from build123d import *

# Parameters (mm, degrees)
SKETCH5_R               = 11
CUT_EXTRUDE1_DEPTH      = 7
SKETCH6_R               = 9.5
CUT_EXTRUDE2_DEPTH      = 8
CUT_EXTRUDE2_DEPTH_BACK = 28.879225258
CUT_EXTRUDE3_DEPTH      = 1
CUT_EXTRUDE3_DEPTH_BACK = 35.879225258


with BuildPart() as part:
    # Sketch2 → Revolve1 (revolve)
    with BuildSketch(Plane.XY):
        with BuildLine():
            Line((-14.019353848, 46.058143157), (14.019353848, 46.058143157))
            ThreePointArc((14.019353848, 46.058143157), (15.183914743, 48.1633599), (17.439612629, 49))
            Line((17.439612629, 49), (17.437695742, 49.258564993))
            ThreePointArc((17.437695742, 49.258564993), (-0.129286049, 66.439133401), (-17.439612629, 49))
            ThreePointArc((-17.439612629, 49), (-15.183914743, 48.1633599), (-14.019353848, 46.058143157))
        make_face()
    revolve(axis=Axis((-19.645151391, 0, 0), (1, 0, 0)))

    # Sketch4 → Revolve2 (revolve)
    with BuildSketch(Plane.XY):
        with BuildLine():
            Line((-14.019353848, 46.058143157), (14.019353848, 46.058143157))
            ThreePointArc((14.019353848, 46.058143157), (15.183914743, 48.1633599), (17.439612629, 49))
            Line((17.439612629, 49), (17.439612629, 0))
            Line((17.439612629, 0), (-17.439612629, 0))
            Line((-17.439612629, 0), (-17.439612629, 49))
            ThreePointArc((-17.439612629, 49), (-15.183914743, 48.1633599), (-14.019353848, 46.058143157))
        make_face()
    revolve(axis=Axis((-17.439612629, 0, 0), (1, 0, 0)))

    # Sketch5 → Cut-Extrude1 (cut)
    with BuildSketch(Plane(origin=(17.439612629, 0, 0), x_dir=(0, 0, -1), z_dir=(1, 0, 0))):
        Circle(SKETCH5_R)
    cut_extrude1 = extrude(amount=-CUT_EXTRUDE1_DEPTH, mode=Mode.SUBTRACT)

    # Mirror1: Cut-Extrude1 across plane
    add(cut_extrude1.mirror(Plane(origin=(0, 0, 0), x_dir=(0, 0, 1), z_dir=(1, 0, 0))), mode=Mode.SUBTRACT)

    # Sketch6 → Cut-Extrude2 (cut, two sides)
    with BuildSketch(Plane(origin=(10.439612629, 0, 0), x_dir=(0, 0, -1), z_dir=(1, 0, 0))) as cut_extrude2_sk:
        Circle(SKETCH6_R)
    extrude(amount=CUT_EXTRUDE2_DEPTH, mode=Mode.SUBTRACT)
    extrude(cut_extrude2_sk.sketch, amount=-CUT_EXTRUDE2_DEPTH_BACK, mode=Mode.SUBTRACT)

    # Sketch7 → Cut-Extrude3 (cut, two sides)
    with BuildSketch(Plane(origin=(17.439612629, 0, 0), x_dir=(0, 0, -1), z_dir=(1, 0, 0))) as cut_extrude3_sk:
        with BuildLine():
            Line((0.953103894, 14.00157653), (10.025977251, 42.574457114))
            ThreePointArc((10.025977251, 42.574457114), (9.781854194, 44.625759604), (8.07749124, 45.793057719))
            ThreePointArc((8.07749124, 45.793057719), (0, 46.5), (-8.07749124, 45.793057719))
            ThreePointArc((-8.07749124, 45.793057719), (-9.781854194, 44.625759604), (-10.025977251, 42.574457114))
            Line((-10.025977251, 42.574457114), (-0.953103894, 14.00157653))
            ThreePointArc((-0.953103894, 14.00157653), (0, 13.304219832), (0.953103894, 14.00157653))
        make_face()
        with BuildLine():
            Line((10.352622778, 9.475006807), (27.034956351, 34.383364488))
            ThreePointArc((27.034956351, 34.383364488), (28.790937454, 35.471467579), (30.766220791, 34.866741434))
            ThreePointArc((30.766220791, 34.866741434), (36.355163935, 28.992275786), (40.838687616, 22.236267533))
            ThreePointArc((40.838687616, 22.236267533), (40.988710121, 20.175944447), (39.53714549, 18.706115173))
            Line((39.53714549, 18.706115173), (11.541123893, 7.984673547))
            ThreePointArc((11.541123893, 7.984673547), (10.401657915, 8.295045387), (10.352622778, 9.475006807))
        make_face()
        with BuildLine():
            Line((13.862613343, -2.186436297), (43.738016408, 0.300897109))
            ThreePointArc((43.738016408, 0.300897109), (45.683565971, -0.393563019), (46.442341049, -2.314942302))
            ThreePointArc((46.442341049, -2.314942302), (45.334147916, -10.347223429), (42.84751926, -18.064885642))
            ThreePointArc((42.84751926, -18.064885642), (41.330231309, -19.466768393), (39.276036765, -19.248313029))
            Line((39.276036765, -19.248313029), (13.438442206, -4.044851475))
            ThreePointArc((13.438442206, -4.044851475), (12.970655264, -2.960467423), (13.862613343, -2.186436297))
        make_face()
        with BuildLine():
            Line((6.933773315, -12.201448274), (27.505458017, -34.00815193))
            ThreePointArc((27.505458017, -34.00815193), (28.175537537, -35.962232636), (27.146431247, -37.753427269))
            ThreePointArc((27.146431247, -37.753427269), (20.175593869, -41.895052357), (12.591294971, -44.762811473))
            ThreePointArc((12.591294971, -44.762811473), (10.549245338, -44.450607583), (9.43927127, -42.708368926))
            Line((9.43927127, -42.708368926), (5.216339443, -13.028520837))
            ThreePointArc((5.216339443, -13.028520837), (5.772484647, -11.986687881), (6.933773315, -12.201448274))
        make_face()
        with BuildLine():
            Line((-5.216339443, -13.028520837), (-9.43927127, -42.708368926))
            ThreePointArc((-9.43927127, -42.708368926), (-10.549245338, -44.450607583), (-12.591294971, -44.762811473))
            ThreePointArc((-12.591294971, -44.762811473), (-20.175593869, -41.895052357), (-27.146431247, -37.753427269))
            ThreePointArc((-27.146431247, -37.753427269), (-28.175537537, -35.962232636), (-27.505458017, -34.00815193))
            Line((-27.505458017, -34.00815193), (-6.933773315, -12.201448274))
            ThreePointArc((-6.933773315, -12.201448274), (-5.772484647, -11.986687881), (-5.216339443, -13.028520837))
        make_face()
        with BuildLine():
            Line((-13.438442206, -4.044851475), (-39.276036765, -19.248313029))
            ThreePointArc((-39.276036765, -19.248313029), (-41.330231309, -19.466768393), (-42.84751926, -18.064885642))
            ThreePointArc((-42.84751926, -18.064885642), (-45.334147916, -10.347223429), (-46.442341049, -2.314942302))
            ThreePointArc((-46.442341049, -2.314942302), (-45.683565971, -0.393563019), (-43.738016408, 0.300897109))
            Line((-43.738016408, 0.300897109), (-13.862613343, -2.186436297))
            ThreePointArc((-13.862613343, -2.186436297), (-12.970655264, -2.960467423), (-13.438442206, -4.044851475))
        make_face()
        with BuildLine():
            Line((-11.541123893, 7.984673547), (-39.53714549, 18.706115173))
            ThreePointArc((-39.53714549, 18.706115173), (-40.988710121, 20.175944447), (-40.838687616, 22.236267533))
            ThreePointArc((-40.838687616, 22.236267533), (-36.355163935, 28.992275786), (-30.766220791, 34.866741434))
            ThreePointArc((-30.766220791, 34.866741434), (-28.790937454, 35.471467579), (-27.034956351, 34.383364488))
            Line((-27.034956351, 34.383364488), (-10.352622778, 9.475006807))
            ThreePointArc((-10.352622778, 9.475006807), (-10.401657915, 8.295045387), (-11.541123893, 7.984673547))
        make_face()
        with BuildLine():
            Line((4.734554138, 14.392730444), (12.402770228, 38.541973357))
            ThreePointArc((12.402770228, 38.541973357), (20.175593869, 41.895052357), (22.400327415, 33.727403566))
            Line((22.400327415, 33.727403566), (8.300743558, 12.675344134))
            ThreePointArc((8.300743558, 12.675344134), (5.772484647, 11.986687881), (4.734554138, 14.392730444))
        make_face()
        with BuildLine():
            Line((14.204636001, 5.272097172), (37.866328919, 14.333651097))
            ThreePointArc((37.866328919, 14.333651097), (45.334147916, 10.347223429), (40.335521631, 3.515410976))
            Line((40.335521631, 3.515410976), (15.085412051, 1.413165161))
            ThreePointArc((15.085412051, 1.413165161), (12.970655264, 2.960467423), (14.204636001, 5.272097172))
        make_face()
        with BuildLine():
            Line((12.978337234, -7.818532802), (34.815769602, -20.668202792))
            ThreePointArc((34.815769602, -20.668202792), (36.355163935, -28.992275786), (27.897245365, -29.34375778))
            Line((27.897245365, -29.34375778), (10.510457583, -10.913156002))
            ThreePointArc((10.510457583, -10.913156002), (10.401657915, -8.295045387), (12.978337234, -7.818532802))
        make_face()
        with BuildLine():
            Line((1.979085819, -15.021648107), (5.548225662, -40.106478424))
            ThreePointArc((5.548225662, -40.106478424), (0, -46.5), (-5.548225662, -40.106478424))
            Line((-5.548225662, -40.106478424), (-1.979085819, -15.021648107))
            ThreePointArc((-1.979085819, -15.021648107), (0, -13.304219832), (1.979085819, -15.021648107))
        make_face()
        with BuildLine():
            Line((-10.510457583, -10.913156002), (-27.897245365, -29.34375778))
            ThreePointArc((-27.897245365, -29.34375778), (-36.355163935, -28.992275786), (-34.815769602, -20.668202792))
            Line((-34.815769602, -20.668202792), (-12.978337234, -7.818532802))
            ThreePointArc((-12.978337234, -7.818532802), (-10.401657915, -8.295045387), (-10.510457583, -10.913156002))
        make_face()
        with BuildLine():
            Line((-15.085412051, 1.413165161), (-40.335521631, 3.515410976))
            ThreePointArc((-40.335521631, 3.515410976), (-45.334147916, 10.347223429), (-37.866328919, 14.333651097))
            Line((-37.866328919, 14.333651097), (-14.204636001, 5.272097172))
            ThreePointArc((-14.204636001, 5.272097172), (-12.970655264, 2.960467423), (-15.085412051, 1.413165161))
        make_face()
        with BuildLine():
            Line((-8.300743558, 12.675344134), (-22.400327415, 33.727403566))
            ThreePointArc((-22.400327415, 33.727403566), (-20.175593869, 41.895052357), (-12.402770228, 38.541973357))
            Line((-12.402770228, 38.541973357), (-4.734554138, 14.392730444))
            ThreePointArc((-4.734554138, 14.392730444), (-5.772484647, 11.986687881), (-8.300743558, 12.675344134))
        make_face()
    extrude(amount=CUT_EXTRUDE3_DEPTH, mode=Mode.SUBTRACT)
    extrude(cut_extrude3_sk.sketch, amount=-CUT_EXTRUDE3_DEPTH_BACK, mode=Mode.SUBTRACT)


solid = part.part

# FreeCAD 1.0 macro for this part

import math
import FreeCAD as App
import Part
import Sketcher

V = App.Vector

doc = App.newDocument("Part")
params = doc.addObject("Spreadsheet::Sheet", "Params")
for row, (alias, value) in enumerate([
    ("revolution_angle", "360 deg"),
    ("sketch2_height", "49 mm"),
    ("revolution2_angle", "360 deg"),
    ("sketch3_diameter", "22 mm"),
    ("pocket1_length", "7 mm"),
    ("sketch4_diameter", "19 mm"),
    ("sketch5_radius", "1 mm"),
    ("sketch5_radius2", "2.5 mm"),
    ("sketch5_radius3", "46.5 mm"),
], start=1):
    params.set(f"A{row}", alias)
    params.set(f"B{row}", "=" + value)
    params.setAlias(f"B{row}", alias)

body = doc.addObject("PartDesign::Body", "Body")

sketch1 = body.newObject("Sketcher::SketchObject", "Sketch")
sketch1.AttachmentSupport = (doc.getObject("XY_Plane"), [""])
sketch1.MapMode = "FlatFace"
sketch1.addGeometry([
    Part.LineSegment(V(-14.019354, 46.058143, 0), V(14.019354, 46.058143, 0)),
    Part.ArcOfCircle(Part.Circle(V(17.439613, 45.540843, 0), V(0, 0, 1), 3.459157), math.radians(90), math.radians(171.399426)),
    Part.LineSegment(V(17.439613, 49, 0), V(17.437696, 49.258565, 0)),
    Part.ArcOfCircle(Part.Circle(V(0, 49, 0), V(0, 0, 1), 17.439613), math.radians(0.849516), math.radians(180)),
    Part.ArcOfCircle(Part.Circle(V(-17.439613, 45.540843, 0), V(0, 0, 1), 3.459157), math.radians(8.600574), math.radians(90)),
], False)
sketch1.addConstraint([
    Sketcher.Constraint("Coincident", 0, 2, 1, 2),
    Sketcher.Constraint("Coincident", 1, 1, 2, 1),
    Sketcher.Constraint("Coincident", 2, 2, 3, 1),
    Sketcher.Constraint("Coincident", 3, 2, 4, 2),
    Sketcher.Constraint("Coincident", 4, 1, 0, 1),
    Sketcher.Constraint("Horizontal", 0),
    Sketcher.Constraint("PointOnObject", 3, 3, -2),
    Sketcher.Constraint("DistanceY", -1, 1, 3, 3, 49.0),
    Sketcher.Constraint("DistanceY", -1, 1, 1, 1, 49.0),
    Sketcher.Constraint("DistanceY", -1, 1, 3, 2, 49.0),
    Sketcher.Constraint("Radius", 1, 3.459157),
    Sketcher.Constraint("Radius", 3, 17.439613),
    Sketcher.Constraint("Radius", 4, 3.459157),
    Sketcher.Constraint("DistanceY", 1, 3, 0, 2, 0.517301),
    Sketcher.Constraint("DistanceX", 0, 1, 0, 2, 28.038708),
    Sketcher.Constraint("DistanceX", 0, 2, 1, 1, 3.420259),
    Sketcher.Constraint("DistanceX", 0, 2, 2, 2, 3.418342),
    Sketcher.Constraint("DistanceY", 0, 2, 2, 2, 3.200422),
])
revolution = body.newObject("PartDesign::Revolution", "Revolution")
revolution.Profile = sketch1
revolution.ReferenceAxis = (sketch1, ["H_Axis"])
revolution.setExpression("Angle", "Params.revolution_angle")

sketch2 = body.newObject("Sketcher::SketchObject", "Sketch001")
sketch2.AttachmentSupport = (doc.getObject("XY_Plane"), [""])
sketch2.MapMode = "FlatFace"
sketch2.addGeometry([
    Part.LineSegment(V(14, 46.1, 0), V(-14, 46.1, 0)),
    Part.ArcOfCircle(Part.Circle(V(-17.4, 45.5, 0), V(0, 0, 1), 3.5), math.radians(9), math.radians(90)),
    Part.LineSegment(V(-17.4, 49, 0), V(-17.4, 0, 0)),
    Part.LineSegment(V(-17.4, 0, 0), V(17.4, 0, 0)),
    Part.LineSegment(V(17.4, 0, 0), V(17.4, 49, 0)),
    Part.ArcOfCircle(Part.Circle(V(17.4, 45.5, 0), V(0, 0, 1), 3.5), math.radians(90), math.radians(171)),
], False)
sketch2.addConstraint([
    Sketcher.Constraint("Coincident", 0, 2, 1, 1),
    Sketcher.Constraint("Coincident", 1, 2, 2, 1),
    Sketcher.Constraint("Coincident", 2, 2, 3, 1),
    Sketcher.Constraint("Coincident", 3, 2, 4, 1),
    Sketcher.Constraint("Coincident", 4, 2, 5, 1),
    Sketcher.Constraint("Coincident", 5, 2, 0, 1),
    Sketcher.Constraint("Horizontal", 0),
    Sketcher.Constraint("Vertical", 2),
    Sketcher.Constraint("Horizontal", 3),
    Sketcher.Constraint("Vertical", 4),
    Sketcher.Constraint("Equal", 1, 5),
    Sketcher.Constraint("Symmetric", 2, 2, 3, 2, -1, 1),
    Sketcher.Constraint("Symmetric", 1, 3, 5, 3, -2),
    Sketcher.Constraint("Vertical", 5, 3, 3, 2),
    Sketcher.Constraint("DistanceY", 2, 2, 2, 1, 49.0),
    Sketcher.Constraint("Radius", 1, 3.459157),
    Sketcher.Constraint("DistanceY", 1, 3, 0, 2, 0.517301),
    Sketcher.Constraint("DistanceX", 0, 2, 0, 1, 28.038708),
])
sketch2.setExpression("Constraints[14]", "Params.sketch2_height")
revolution2 = body.newObject("PartDesign::Revolution", "Revolution001")
revolution2.Profile = sketch2
revolution2.ReferenceAxis = (sketch2, ["H_Axis"])
revolution2.setExpression("Angle", "Params.revolution2_angle")

sketch3 = body.newObject("Sketcher::SketchObject", "Sketch002")
sketch3.AttachmentSupport = (doc.getObject("YZ_Plane"), [""])
sketch3.MapMode = "FlatFace"
sketch3.AttachmentOffset = App.Placement(V(0, 0, 17.439613), App.Rotation())
sketch3.addGeometry(Part.Circle(V(0, 0, 0), V(0, 0, 1), 11), False)
sketch3.addConstraint([
    Sketcher.Constraint("Coincident", 0, 3, -1, 1),
    Sketcher.Constraint("Diameter", 0, 22.0),
])
sketch3.setExpression("Constraints[1]", "Params.sketch3_diameter")
pocket1 = body.newObject("PartDesign::Pocket", "Pocket")
pocket1.Profile = sketch3
pocket1.setExpression("Length", "Params.pocket1_length")
doc.recompute()

mirrored = body.newObject("PartDesign::Mirrored", "Mirrored")
mirrored.Originals = [pocket1]
mirrored.MirrorPlane = (doc.getObject("YZ_Plane"), [""])
body.Tip = mirrored

sketch4 = body.newObject("Sketcher::SketchObject", "Sketch003")
sketch4.AttachmentSupport = (doc.getObject("YZ_Plane"), [""])
sketch4.MapMode = "FlatFace"
sketch4.AttachmentOffset = App.Placement(V(0, 0, 10.439613), App.Rotation())
sketch4.addGeometry(Part.Circle(V(0, 0, 0), V(0, 0, 1), 10), False)
sketch4.addConstraint([
    Sketcher.Constraint("Coincident", 0, 3, -1, 1),
    Sketcher.Constraint("Diameter", 0, 19.0),
])
sketch4.setExpression("Constraints[1]", "Params.sketch4_diameter")
pocket2 = body.newObject("PartDesign::Pocket", "Pocket001")
pocket2.Profile = sketch4
pocket2.Type = "ThroughAll"
pocket2.Midplane = True

sketch5 = body.newObject("Sketcher::SketchObject", "Sketch004")
sketch5.AttachmentSupport = (doc.getObject("YZ_Plane"), [""])
sketch5.MapMode = "FlatFace"
sketch5.AttachmentOffset = App.Placement(V(0, 0, 17.439613), App.Rotation())
sketch5.addGeometry([
    Part.LineSegment(V(14, -1, 0), V(42.6, -10, 0)),
    Part.ArcOfCircle(Part.Circle(V(43.3, -7.6, 0), V(0, 0, 1), 2.5), math.radians(-108), math.radians(-10)),
    Part.ArcOfCircle(Part.Circle(V(0, 0, 0), V(0, 0, 1), 46.5), math.radians(-10), math.radians(10)),
    Part.ArcOfCircle(Part.Circle(V(43.3, 7.6, 0), V(0, 0, 1), 2.5), math.radians(10), math.radians(108)),
    Part.LineSegment(V(42.6, 10, 0), V(14, 1, 0)),
    Part.ArcOfCircle(Part.Circle(V(14.3, 0, 0), V(0, 0, 1), 1), math.radians(108), math.radians(252)),
    Part.LineSegment(V(34.4, -27, 0), V(9.5, -10.4, 0)),
    Part.ArcOfCircle(Part.Circle(V(8.9, -11.2, 0), V(0, 0, 1), 1), math.radians(56), math.radians(201)),
    Part.LineSegment(V(8, -11.5, 0), V(18.7, -39.5, 0)),
    Part.ArcOfCircle(Part.Circle(V(21, -38.6, 0), V(0, 0, 1), 2.5), math.radians(-159), math.radians(-61)),
    Part.ArcOfCircle(Part.Circle(V(0, 0, 0), V(0, 0, 1), 46.5), math.radians(-61), math.radians(-41)),
    Part.ArcOfCircle(Part.Circle(V(33, -29.1, 0), V(0, 0, 1), 2.5), math.radians(-41), math.radians(56)),
    Part.LineSegment(V(0.3, -43.7, 0), V(-2.2, -13.9, 0)),
    Part.ArcOfCircle(Part.Circle(V(-3.2, -13.9, 0), V(0, 0, 1), 1), math.radians(5), math.radians(150)),
    Part.LineSegment(V(-4, -13.4, 0), V(-19.2, -39.3, 0)),
    Part.ArcOfCircle(Part.Circle(V(-17.1, -40.5, 0), V(0, 0, 1), 2.5), math.radians(150), math.radians(247)),
    Part.ArcOfCircle(Part.Circle(V(0, 0, 0), V(0, 0, 1), 46.5), math.radians(-113), math.radians(-93)),
    Part.ArcOfCircle(Part.Circle(V(-2.2, -43.9, 0), V(0, 0, 1), 2.5), math.radians(-93), math.radians(5)),
    Part.LineSegment(V(-34, -27.5, 0), V(-12.2, -6.9, 0)),
    Part.ArcOfCircle(Part.Circle(V(-12.9, -6.2, 0), V(0, 0, 1), 1), math.radians(-47), math.radians(98)),
    Part.LineSegment(V(-13, -5.2, 0), V(-42.7, -9.4, 0)),
    Part.ArcOfCircle(Part.Circle(V(-42.4, -11.9, 0), V(0, 0, 1), 2.5), math.radians(98), math.radians(196)),
    Part.ArcOfCircle(Part.Circle(V(0, 0, 0), V(0, 0, 1), 46.5), math.radians(-164), math.radians(-144)),
    Part.ArcOfCircle(Part.Circle(V(-35.7, -25.7, 0), V(0, 0, 1), 2.5), math.radians(-144), math.radians(-47)),
    Part.LineSegment(V(-42.7, 9.4, 0), V(-13, 5.2, 0)),
    Part.ArcOfCircle(Part.Circle(V(-12.9, 6.2, 0), V(0, 0, 1), 1), math.radians(-98), math.radians(47)),
    Part.LineSegment(V(-12.2, 6.9, 0), V(-34, 27.5, 0)),
    Part.ArcOfCircle(Part.Circle(V(-35.7, 25.7, 0), V(0, 0, 1), 2.5), math.radians(47), math.radians(144)),
    Part.ArcOfCircle(Part.Circle(V(0, 0, 0), V(0, 0, 1), 46.5), math.radians(144), math.radians(164)),
    Part.ArcOfCircle(Part.Circle(V(-42.4, 11.9, 0), V(0, 0, 1), 2.5), math.radians(164), math.radians(262)),
    Part.LineSegment(V(-19.2, 39.3, 0), V(-4, 13.4, 0)),
    Part.ArcOfCircle(Part.Circle(V(-3.2, 13.9, 0), V(0, 0, 1), 1), math.radians(-150), math.radians(-5)),
    Part.LineSegment(V(-2.2, 13.9, 0), V(0.3, 43.7, 0)),
    Part.ArcOfCircle(Part.Circle(V(-2.2, 43.9, 0), V(0, 0, 1), 2.5), math.radians(-5), math.radians(93)),
    Part.ArcOfCircle(Part.Circle(V(0, 0, 0), V(0, 0, 1), 46.5), math.radians(93), math.radians(113)),
    Part.ArcOfCircle(Part.Circle(V(-17.1, 40.5, 0), V(0, 0, 1), 2.5), math.radians(113), math.radians(210)),
    Part.LineSegment(V(18.7, 39.5, 0), V(8, 11.5, 0)),
    Part.ArcOfCircle(Part.Circle(V(8.9, 11.2, 0), V(0, 0, 1), 1), math.radians(159), math.radians(304)),
    Part.LineSegment(V(9.5, 10.4, 0), V(34.4, 27, 0)),
    Part.ArcOfCircle(Part.Circle(V(33, 29.1, 0), V(0, 0, 1), 2.5), math.radians(-56), math.radians(41)),
    Part.ArcOfCircle(Part.Circle(V(0, 0, 0), V(0, 0, 1), 46.5), math.radians(41), math.radians(61)),
    Part.ArcOfCircle(Part.Circle(V(21, 38.6, 0), V(0, 0, 1), 2.5), math.radians(61), math.radians(159)),
    Part.LineSegment(V(38.5, -12.4, 0), V(14.4, -4.7, 0)),
    Part.ArcOfCircle(Part.Circle(V(13.8, -6.6, 0), V(0, 0, 1), 2), math.radians(72), math.radians(236)),
    Part.LineSegment(V(12.7, -8.3, 0), V(33.7, -22.4, 0)),
    Part.ArcOfCircle(Part.Circle(V(36.8, -17.7, 0), V(0, 0, 1), 5.6), math.radians(-124), math.radians(72)),
    Part.LineSegment(V(14.3, -37.9, 0), V(5.3, -14.2, 0)),
    Part.ArcOfCircle(Part.Circle(V(3.4, -14.9, 0), V(0, 0, 1), 2), math.radians(21), math.radians(185)),
    Part.LineSegment(V(1.4, -15.1, 0), V(3.5, -40.3, 0)),
    Part.ArcOfCircle(Part.Circle(V(9.1, -39.9, 0), V(0, 0, 1), 5.6), math.radians(-175), math.radians(21)),
    Part.LineSegment(V(-20.7, -34.8, 0), V(-7.8, -13, 0)),
    Part.ArcOfCircle(Part.Circle(V(-9.5, -12, 0), V(0, 0, 1), 2), math.radians(-30), math.radians(133)),
    Part.LineSegment(V(-10.9, -10.5, 0), V(-29.3, -27.9, 0)),
    Part.ArcOfCircle(Part.Circle(V(-25.5, -32, 0), V(0, 0, 1), 5.6), math.radians(133), math.radians(330)),
    Part.LineSegment(V(-40.1, -5.5, 0), V(-15, -2, 0)),
    Part.ArcOfCircle(Part.Circle(V(-15.3, 0, 0), V(0, 0, 1), 2), math.radians(-82), math.radians(82)),
    Part.LineSegment(V(-15, 2, 0), V(-40.1, 5.5, 0)),
    Part.ArcOfCircle(Part.Circle(V(-40.9, 0, 0), V(0, 0, 1), 5.6), math.radians(82), math.radians(278)),
    Part.LineSegment(V(-29.3, 27.9, 0), V(-10.9, 10.5, 0)),
    Part.ArcOfCircle(Part.Circle(V(-9.5, 12, 0), V(0, 0, 1), 2), math.radians(-133), math.radians(30)),
    Part.LineSegment(V(-7.8, 13, 0), V(-20.7, 34.8, 0)),
    Part.ArcOfCircle(Part.Circle(V(-25.5, 32, 0), V(0, 0, 1), 5.6), math.radians(30), math.radians(227)),
    Part.LineSegment(V(3.5, 40.3, 0), V(1.4, 15.1, 0)),
    Part.ArcOfCircle(Part.Circle(V(3.4, 14.9, 0), V(0, 0, 1), 2), math.radians(175), math.radians(339)),
    Part.LineSegment(V(5.3, 14.2, 0), V(14.3, 37.9, 0)),
    Part.ArcOfCircle(Part.Circle(V(9.1, 39.9, 0), V(0, 0, 1), 5.6), math.radians(-21), math.radians(175)),
    Part.LineSegment(V(33.7, 22.4, 0), V(12.7, 8.3, 0)),
    Part.ArcOfCircle(Part.Circle(V(13.8, 6.6, 0), V(0, 0, 1), 2), math.radians(124), math.radians(288)),
    Part.LineSegment(V(14.4, 4.7, 0), V(38.5, 12.4, 0)),
    Part.ArcOfCircle(Part.Circle(V(36.8, 17.7, 0), V(0, 0, 1), 5.6), math.radians(-72), math.radians(124)),
], False)
sketch5.addConstraint([
    Sketcher.Constraint("Tangent", 0, 2, 1, 1),
    Sketcher.Constraint("Tangent", 1, 2, 2, 1),
    Sketcher.Constraint("Tangent", 2, 2, 3, 1),
    Sketcher.Constraint("Tangent", 3, 2, 4, 1),
    Sketcher.Constraint("Tangent", 4, 2, 5, 1),
    Sketcher.Constraint("Tangent", 5, 2, 0, 1),
    Sketcher.Constraint("Tangent", 6, 2, 7, 1),
    Sketcher.Constraint("Tangent", 7, 2, 8, 1),
    Sketcher.Constraint("Tangent", 8, 2, 9, 1),
    Sketcher.Constraint("Tangent", 9, 2, 10, 1),
    Sketcher.Constraint("Tangent", 10, 2, 11, 1),
    Sketcher.Constraint("Tangent", 11, 2, 6, 1),
    Sketcher.Constraint("Tangent", 12, 2, 13, 1),
    Sketcher.Constraint("Tangent", 13, 2, 14, 1),
    Sketcher.Constraint("Tangent", 14, 2, 15, 1),
    Sketcher.Constraint("Tangent", 15, 2, 16, 1),
    Sketcher.Constraint("Tangent", 16, 2, 17, 1),
    Sketcher.Constraint("Tangent", 17, 2, 12, 1),
    Sketcher.Constraint("Tangent", 18, 2, 19, 1),
    Sketcher.Constraint("Tangent", 19, 2, 20, 1),
    Sketcher.Constraint("Tangent", 20, 2, 21, 1),
    Sketcher.Constraint("Tangent", 21, 2, 22, 1),
    Sketcher.Constraint("Tangent", 22, 2, 23, 1),
    Sketcher.Constraint("Tangent", 23, 2, 18, 1),
    Sketcher.Constraint("Tangent", 24, 2, 25, 1),
    Sketcher.Constraint("Tangent", 25, 2, 26, 1),
    Sketcher.Constraint("Tangent", 26, 2, 27, 1),
    Sketcher.Constraint("Tangent", 27, 2, 28, 1),
    Sketcher.Constraint("Tangent", 28, 2, 29, 1),
    Sketcher.Constraint("Tangent", 29, 2, 24, 1),
    Sketcher.Constraint("Tangent", 30, 2, 31, 1),
    Sketcher.Constraint("Tangent", 31, 2, 32, 1),
    Sketcher.Constraint("Tangent", 32, 2, 33, 1),
    Sketcher.Constraint("Tangent", 33, 2, 34, 1),
    Sketcher.Constraint("Tangent", 34, 2, 35, 1),
    Sketcher.Constraint("Tangent", 35, 2, 30, 1),
    Sketcher.Constraint("Tangent", 36, 2, 37, 1),
    Sketcher.Constraint("Tangent", 37, 2, 38, 1),
    Sketcher.Constraint("Tangent", 38, 2, 39, 1),
    Sketcher.Constraint("Tangent", 39, 2, 40, 1),
    Sketcher.Constraint("Tangent", 40, 2, 41, 1),
    Sketcher.Constraint("Tangent", 41, 2, 36, 1),
    Sketcher.Constraint("Tangent", 42, 2, 43, 1),
    Sketcher.Constraint("Tangent", 43, 2, 44, 1),
    Sketcher.Constraint("Tangent", 44, 2, 45, 1),
    Sketcher.Constraint("Tangent", 45, 2, 42, 1),
    Sketcher.Constraint("Tangent", 46, 2, 47, 1),
    Sketcher.Constraint("Tangent", 47, 2, 48, 1),
    Sketcher.Constraint("Tangent", 48, 2, 49, 1),
    Sketcher.Constraint("Tangent", 49, 2, 46, 1),
    Sketcher.Constraint("Tangent", 50, 2, 51, 1),
    Sketcher.Constraint("Tangent", 51, 2, 52, 1),
    Sketcher.Constraint("Tangent", 52, 2, 53, 1),
    Sketcher.Constraint("Tangent", 53, 2, 50, 1),
    Sketcher.Constraint("Tangent", 54, 2, 55, 1),
    Sketcher.Constraint("Tangent", 55, 2, 56, 1),
    Sketcher.Constraint("Tangent", 56, 2, 57, 1),
    Sketcher.Constraint("Tangent", 57, 2, 54, 1),
    Sketcher.Constraint("Tangent", 58, 2, 59, 1),
    Sketcher.Constraint("Tangent", 59, 2, 60, 1),
    Sketcher.Constraint("Tangent", 60, 2, 61, 1),
    Sketcher.Constraint("Tangent", 61, 2, 58, 1),
    Sketcher.Constraint("Tangent", 62, 2, 63, 1),
    Sketcher.Constraint("Tangent", 63, 2, 64, 1),
    Sketcher.Constraint("Tangent", 64, 2, 65, 1),
    Sketcher.Constraint("Tangent", 65, 2, 62, 1),
    Sketcher.Constraint("Tangent", 66, 2, 67, 1),
    Sketcher.Constraint("Tangent", 67, 2, 68, 1),
    Sketcher.Constraint("Tangent", 68, 2, 69, 1),
    Sketcher.Constraint("Tangent", 69, 2, 66, 1),
    Sketcher.Constraint("Coincident", 2, 3, -1, 1),
    Sketcher.Constraint("Coincident", 10, 3, -1, 1),
    Sketcher.Constraint("Coincident", 16, 3, -1, 1),
    Sketcher.Constraint("Coincident", 22, 3, -1, 1),
    Sketcher.Constraint("Coincident", 28, 3, -1, 1),
    Sketcher.Constraint("Coincident", 34, 3, -1, 1),
    Sketcher.Constraint("Coincident", 40, 3, -1, 1),
    Sketcher.Constraint("Equal", 1, 3),
    Sketcher.Constraint("Equal", 5, 7),
    Sketcher.Constraint("Equal", 3, 9),
    Sketcher.Constraint("Equal", 2, 10),
    Sketcher.Constraint("Equal", 9, 11),
    Sketcher.Constraint("Equal", 7, 13),
    Sketcher.Constraint("Equal", 11, 15),
    Sketcher.Constraint("Equal", 10, 16),
    Sketcher.Constraint("Equal", 15, 17),
    Sketcher.Constraint("Equal", 13, 19),
    Sketcher.Constraint("Equal", 17, 21),
    Sketcher.Constraint("Equal", 16, 22),
    Sketcher.Constraint("Equal", 21, 23),
    Sketcher.Constraint("Equal", 19, 25),
    Sketcher.Constraint("Equal", 23, 27),
    Sketcher.Constraint("Equal", 22, 28),
    Sketcher.Constraint("Equal", 27, 29),
    Sketcher.Constraint("Equal", 25, 31),
    Sketcher.Constraint("Equal", 29, 33),
    Sketcher.Constraint("Equal", 28, 34),
    Sketcher.Constraint("Equal", 33, 35),
    Sketcher.Constraint("Equal", 31, 37),
    Sketcher.Constraint("Equal", 35, 39),
    Sketcher.Constraint("Equal", 34, 40),
    Sketcher.Constraint("Equal", 39, 41),
    Sketcher.Constraint("Equal", 43, 47),
    Sketcher.Constraint("Equal", 45, 49),
    Sketcher.Constraint("Equal", 47, 51),
    Sketcher.Constraint("Equal", 49, 53),
    Sketcher.Constraint("Equal", 51, 55),
    Sketcher.Constraint("Equal", 53, 57),
    Sketcher.Constraint("Equal", 55, 59),
    Sketcher.Constraint("Equal", 57, 61),
    Sketcher.Constraint("Equal", 59, 63),
    Sketcher.Constraint("Equal", 61, 65),
    Sketcher.Constraint("Equal", 63, 67),
    Sketcher.Constraint("Equal", 65, 69),
    Sketcher.Constraint("Symmetric", 19, 3, 25, 3, -1),
    Sketcher.Constraint("Symmetric", 13, 3, 31, 3, -1),
    Sketcher.Constraint("Symmetric", 7, 3, 37, 3, -1),
    Sketcher.Constraint("Symmetric", 51, 3, 59, 3, -1),
    Sketcher.Constraint("Symmetric", 53, 3, 61, 3, -1),
    Sketcher.Constraint("Symmetric", 47, 3, 63, 3, -1),
    Sketcher.Constraint("Symmetric", 49, 3, 65, 3, -1),
    Sketcher.Constraint("Symmetric", 43, 3, 67, 3, -1),
    Sketcher.Constraint("Symmetric", 45, 3, 69, 3, -1),
    Sketcher.Constraint("Symmetric", 0, 2, 3, 2, -1),
    Sketcher.Constraint("Symmetric", 54, 2, 55, 2, -1),
    Sketcher.Constraint("Parallel", 0, 42),
    Sketcher.Constraint("Parallel", 6, 44),
    Sketcher.Constraint("Parallel", 8, 46),
    Sketcher.Constraint("Parallel", 12, 48),
    Sketcher.Constraint("Parallel", 14, 50),
    Sketcher.Constraint("Parallel", 18, 52),
    Sketcher.Constraint("Parallel", 20, 54),
    Sketcher.Constraint("Parallel", 24, 56),
    Sketcher.Constraint("Parallel", 26, 58),
    Sketcher.Constraint("Parallel", 30, 60),
    Sketcher.Constraint("Parallel", 32, 62),
    Sketcher.Constraint("Parallel", 36, 64),
    Sketcher.Constraint("Parallel", 38, 66),
    Sketcher.Constraint("Equal", 4, 6),
    Sketcher.Constraint("Equal", 6, 8),
    Sketcher.Constraint("Equal", 8, 12),
    Sketcher.Constraint("Equal", 12, 14),
    Sketcher.Constraint("Equal", 14, 18),
    Sketcher.Constraint("Equal", 18, 20),
    Sketcher.Constraint("Equal", 44, 46),
    Sketcher.Constraint("Equal", 48, 50),
    Sketcher.Constraint("Equal", 52, 54),
    Sketcher.Constraint("Radius", 5, 1.0),
    Sketcher.Constraint("Radius", 1, 2.5),
    Sketcher.Constraint("Radius", 2, 46.5),
    Sketcher.Constraint("Radius", 43, 1.999018),
    Sketcher.Constraint("Radius", 45, 5.604105),
    Sketcher.Constraint("DistanceY", 53, 3, -1, 1, 31.973699),
    Sketcher.Constraint("Distance", 0, 29.978768),
    Sketcher.Constraint("Distance", 42, 25.337472),
    Sketcher.Constraint("DistanceX", -1, 1, 5, 3, 14.30422),
    Sketcher.Constraint("DistanceY", 7, 3, -1, 1, 11.183489),
    Sketcher.Constraint("DistanceX", 13, 3, -1, 1, 3.182988),
    Sketcher.Constraint("DistanceX", -1, 1, 43, 3, 13.787741),
    Sketcher.Constraint("DistanceX", -1, 1, 47, 3, 3.405291),
    Sketcher.Constraint("DistanceY", 49, 3, -1, 1, 39.87055),
    Sketcher.Constraint("DistanceY", 45, 2, -1, 1, 12.40277),
    Sketcher.Constraint("DistanceX", 54, 2, -1, 1, 15.021648),
    Sketcher.Constraint("DistanceX", 51, 3, -1, 1, 9.541413),
])
sketch5.setExpression("Constraints[147]", "Params.sketch5_radius")
sketch5.setExpression("Constraints[148]", "Params.sketch5_radius2")
sketch5.setExpression("Constraints[149]", "Params.sketch5_radius3")
pocket3 = body.newObject("PartDesign::Pocket", "Pocket002")
pocket3.Profile = sketch5
pocket3.Type = "ThroughAll"
pocket3.Midplane = True

doc.recompute()
